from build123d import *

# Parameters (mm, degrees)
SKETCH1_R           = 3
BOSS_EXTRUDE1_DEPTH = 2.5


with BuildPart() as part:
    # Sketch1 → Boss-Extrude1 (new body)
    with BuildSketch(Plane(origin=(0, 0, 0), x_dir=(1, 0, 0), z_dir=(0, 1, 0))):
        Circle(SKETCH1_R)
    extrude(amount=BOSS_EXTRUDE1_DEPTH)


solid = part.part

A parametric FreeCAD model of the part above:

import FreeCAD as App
import Part
import Sketcher
from FreeCAD import Vector
Q = App.Units.Quantity

doc = App.newDocument("Part")
params = doc.addObject("Spreadsheet::Sheet", "Params")
for row, (alias, value) in enumerate([
    ("sketch1_diameter", "6 mm"),
    ("pad1_length", "2.5 mm"),
], start=1):
    params.set(f"A{row}", alias)
    params.set(f"B{row}", "=" + value)
    params.setAlias(f"B{row}", alias)

body = doc.addObject("PartDesign::Body", "Body")

sketch1 = body.newObject("Sketcher::SketchObject", "Sketch")
sketch1.AttachmentSupport = (doc.getObject("XZ_Plane"), [""])
sketch1.MapMode = "FlatFace"
sketch1.addGeometry(Part.Circle(Vector(0, 0, 0), Vector(0, 0, 1), 3), False)
sketch1.addConstraint(Sketcher.Constraint("Coincident", 0, 3, -1, 1))
sketch1.addConstraint(Sketcher.Constraint("Diameter", 0, Q("6 mm")))
sketch1.setExpression("Constraints[1]", "Params.sketch1_diameter")
pad1 = body.newObject("PartDesign::Pad", "Pad")
pad1.Profile = sketch1
pad1.setExpression("Length", "Params.pad1_length")
pad1.Reversed = True

doc.recompute()
